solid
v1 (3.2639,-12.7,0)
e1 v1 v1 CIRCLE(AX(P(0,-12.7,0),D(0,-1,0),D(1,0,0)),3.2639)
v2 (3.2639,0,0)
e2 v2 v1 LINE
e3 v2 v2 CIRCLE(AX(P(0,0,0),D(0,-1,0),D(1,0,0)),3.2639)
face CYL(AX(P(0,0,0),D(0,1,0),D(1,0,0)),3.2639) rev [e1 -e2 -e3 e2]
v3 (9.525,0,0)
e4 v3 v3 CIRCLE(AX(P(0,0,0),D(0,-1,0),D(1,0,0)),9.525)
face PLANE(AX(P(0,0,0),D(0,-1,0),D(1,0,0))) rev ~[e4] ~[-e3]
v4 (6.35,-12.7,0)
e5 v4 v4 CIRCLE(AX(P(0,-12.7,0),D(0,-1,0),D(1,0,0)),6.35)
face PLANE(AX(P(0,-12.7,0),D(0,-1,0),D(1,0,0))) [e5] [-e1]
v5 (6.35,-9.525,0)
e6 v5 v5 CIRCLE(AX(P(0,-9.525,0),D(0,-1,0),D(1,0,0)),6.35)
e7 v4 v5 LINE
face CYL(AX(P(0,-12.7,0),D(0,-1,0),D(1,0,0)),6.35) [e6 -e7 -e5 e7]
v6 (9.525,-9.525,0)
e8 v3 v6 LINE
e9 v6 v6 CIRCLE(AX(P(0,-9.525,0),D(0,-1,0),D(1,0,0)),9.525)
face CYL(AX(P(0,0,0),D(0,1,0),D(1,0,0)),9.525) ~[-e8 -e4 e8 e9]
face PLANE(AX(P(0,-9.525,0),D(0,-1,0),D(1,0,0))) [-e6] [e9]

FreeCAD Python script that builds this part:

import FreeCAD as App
import Part
import Sketcher

V = App.Vector
Q = App.Units.Quantity

doc = App.newDocument("Part")
params = doc.addObject("Spreadsheet::Sheet", "Params")
for row, (alias, value) in enumerate([
    ("sketch1_diameter", "0.75 in"),
    ("sketch1_diameter2", "0.257 in"),
    ("pad1_length", "0.5 in"),
    ("sketch2_diameter", "0.5 in"),
    ("sketch2_diameter2", "0.75 in"),
    ("pocket1_length", "0.125 in"),
], start=1):
    params.set(f"A{row}", alias)
    params.set(f"B{row}", "=" + value)
    params.setAlias(f"B{row}", alias)

body = doc.addObject("PartDesign::Body", "Body")

# Sketch on XZ plane
sketch1 = doc.addObject("Sketcher::SketchObject", "Sketch")
body.addObject(sketch1)
sketch1.AttachmentSupport = (doc.XZ_Plane, [""])
sketch1.MapMode = "FlatFace"
sketch1.addGeometry(Part.Circle(V(0, 0, 0), V(0, 0, 1), 9.5), False)
sketch1.addGeometry(Part.Circle(V(0, 0, 0), V(0, 0, 1), 3.3), False)
sketch1.addConstraint(Sketcher.Constraint("Coincident", 0, 3, -1, 1))
sketch1.addConstraint(Sketcher.Constraint("Coincident", 1, 3, -1, 1))
sketch1.addConstraint(Sketcher.Constraint("Diameter", 0, Q("0.75 in")))
sketch1.addConstraint(Sketcher.Constraint("Diameter", 1, Q("0.257 in")))
sketch1.setExpression("Constraints[2]", "Params.sketch1_diameter")
sketch1.setExpression("Constraints[3]", "Params.sketch1_diameter2")
pad1 = doc.addObject("PartDesign::Pad", "Pad")
body.addObject(pad1)
pad1.Profile = sketch1
pad1.setExpression("Length", "Params.pad1_length")

# Sketch on XZ plane
sketch2 = doc.addObject("Sketcher::SketchObject", "Sketch001")
body.addObject(sketch2)
sketch2.AttachmentSupport = (doc.XZ_Plane, [""])
sketch2.MapMode = "FlatFace"
sketch2.AttachmentOffset = App.Placement(V(0, 0, 0.5 * 25.4), App.Rotation())
sketch2.addGeometry(Part.Circle(V(0, 0, 0), V(0, 0, 1), 10), False)
sketch2.addGeometry(Part.Circle(V(0, 0, 0), V(0, 0, 1), 6), False)
sketch2.addConstraint(Sketcher.Constraint("Coincident", 0, 3, -1, 1))
sketch2.addConstraint(Sketcher.Constraint("Coincident", 1, 3, -1, 1))
sketch2.addConstraint(Sketcher.Constraint("Diameter", 1, Q("0.5 in")))
sketch2.addConstraint(Sketcher.Constraint("Diameter", 0, Q("0.75 in")))
sketch2.setExpression("Constraints[2]", "Params.sketch2_diameter")
sketch2.setExpression("Constraints[3]", "Params.sketch2_diameter2")
pocket1 = doc.addObject("PartDesign::Pocket", "Pocket")
body.addObject(pocket1)
pocket1.Profile = sketch2
pocket1.setExpression("Length", "Params.pocket1_length")

doc.recompute()
